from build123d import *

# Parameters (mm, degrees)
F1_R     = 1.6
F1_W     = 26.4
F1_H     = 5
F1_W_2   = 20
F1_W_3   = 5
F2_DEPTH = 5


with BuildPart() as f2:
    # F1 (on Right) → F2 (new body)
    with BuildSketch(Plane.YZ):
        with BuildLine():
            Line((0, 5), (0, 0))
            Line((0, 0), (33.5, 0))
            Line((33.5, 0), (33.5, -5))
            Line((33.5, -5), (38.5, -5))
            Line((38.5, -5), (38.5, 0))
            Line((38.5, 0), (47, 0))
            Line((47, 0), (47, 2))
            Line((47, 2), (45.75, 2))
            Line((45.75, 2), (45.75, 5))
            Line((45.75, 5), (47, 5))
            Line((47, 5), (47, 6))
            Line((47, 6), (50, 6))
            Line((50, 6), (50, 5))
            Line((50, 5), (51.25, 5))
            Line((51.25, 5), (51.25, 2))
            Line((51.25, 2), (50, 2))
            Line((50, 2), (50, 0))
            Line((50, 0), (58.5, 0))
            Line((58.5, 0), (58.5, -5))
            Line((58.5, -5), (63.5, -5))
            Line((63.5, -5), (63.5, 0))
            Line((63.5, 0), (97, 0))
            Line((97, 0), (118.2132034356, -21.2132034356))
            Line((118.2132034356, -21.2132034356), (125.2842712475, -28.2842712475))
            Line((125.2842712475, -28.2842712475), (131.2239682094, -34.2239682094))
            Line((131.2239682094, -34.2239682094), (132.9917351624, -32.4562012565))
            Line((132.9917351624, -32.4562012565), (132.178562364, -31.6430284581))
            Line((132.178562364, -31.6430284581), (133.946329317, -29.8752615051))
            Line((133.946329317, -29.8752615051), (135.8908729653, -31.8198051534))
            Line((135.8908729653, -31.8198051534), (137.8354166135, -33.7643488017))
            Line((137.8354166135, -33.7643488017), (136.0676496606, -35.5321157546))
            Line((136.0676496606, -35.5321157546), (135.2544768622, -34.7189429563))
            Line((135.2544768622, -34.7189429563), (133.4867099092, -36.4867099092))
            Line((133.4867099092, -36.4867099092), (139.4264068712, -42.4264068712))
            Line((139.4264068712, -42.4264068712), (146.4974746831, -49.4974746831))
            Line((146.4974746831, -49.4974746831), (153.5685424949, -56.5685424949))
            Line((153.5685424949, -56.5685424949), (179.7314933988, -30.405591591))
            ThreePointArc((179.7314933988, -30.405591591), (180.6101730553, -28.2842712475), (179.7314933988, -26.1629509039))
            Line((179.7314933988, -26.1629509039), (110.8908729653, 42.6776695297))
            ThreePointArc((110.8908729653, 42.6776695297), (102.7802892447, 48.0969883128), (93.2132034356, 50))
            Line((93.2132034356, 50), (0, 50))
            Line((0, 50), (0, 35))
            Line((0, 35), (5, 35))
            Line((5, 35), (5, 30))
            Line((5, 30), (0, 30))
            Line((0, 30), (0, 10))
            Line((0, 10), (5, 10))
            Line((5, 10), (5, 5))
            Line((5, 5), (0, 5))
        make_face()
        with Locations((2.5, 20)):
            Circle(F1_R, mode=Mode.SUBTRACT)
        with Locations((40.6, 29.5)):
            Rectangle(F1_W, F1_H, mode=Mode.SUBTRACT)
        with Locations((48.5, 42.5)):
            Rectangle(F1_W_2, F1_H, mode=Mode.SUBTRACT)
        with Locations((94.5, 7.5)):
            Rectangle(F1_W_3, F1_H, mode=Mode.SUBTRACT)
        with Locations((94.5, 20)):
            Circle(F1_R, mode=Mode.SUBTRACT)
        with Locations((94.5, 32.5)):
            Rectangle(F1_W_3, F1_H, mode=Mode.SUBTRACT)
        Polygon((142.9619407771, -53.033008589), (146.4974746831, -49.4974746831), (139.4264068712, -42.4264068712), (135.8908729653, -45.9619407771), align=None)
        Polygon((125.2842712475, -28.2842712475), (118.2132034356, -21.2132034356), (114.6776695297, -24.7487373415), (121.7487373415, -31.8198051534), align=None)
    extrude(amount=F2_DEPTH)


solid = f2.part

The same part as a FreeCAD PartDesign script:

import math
import FreeCAD as App
import Part
import Sketcher
from FreeCAD import Vector

doc = App.newDocument("Part")
body = doc.addObject("PartDesign::Body", "Body")

# Sketch on YZ plane
sketch1 = body.newObject("Sketcher::SketchObject", "Sketch")
sketch1.AttachmentSupport = (doc.getObject("YZ_Plane"), [""])
sketch1.MapMode = "FlatFace"
sketch1.addGeometry([
    Part.LineSegment(Vector(0, 5, 0), Vector(0, 0, 0)),  # 0
    Part.LineSegment(Vector(0, 0, 0), Vector(33.5, 0, 0)),  # 1
    Part.LineSegment(Vector(33.5, 0, 0), Vector(33.5, -5, 0)),  # 2
    Part.LineSegment(Vector(33.5, -5, 0), Vector(38.5, -5, 0)),  # 3
    Part.LineSegment(Vector(38.5, -5, 0), Vector(38.5, 0, 0)),  # 4
    Part.LineSegment(Vector(38.5, 0, 0), Vector(47, 0, 0)),  # 5
    Part.LineSegment(Vector(47, 0, 0), Vector(47, 2, 0)),  # 6
    Part.LineSegment(Vector(47, 2, 0), Vector(45.8, 2, 0)),  # 7
    Part.LineSegment(Vector(45.8, 2, 0), Vector(45.8, 5, 0)),  # 8
    Part.LineSegment(Vector(45.8, 5, 0), Vector(47, 5, 0)),  # 9
    Part.LineSegment(Vector(47, 5, 0), Vector(47, 6, 0)),  # 10
    Part.LineSegment(Vector(47, 6, 0), Vector(50, 6, 0)),  # 11
    Part.LineSegment(Vector(50, 6, 0), Vector(50, 5, 0)),  # 12
    Part.LineSegment(Vector(50, 5, 0), Vector(51.2, 5, 0)),  # 13
    Part.LineSegment(Vector(51.2, 5, 0), Vector(51.2, 2, 0)),  # 14
    Part.LineSegment(Vector(51.2, 2, 0), Vector(50, 2, 0)),  # 15
    Part.LineSegment(Vector(50, 2, 0), Vector(50, 0, 0)),  # 16
    Part.LineSegment(Vector(50, 0, 0), Vector(58.5, 0, 0)),  # 17
    Part.LineSegment(Vector(58.5, 0, 0), Vector(58.5, -5, 0)),  # 18
    Part.LineSegment(Vector(58.5, -5, 0), Vector(63.5, -5, 0)),  # 19
    Part.LineSegment(Vector(63.5, -5, 0), Vector(63.5, 0, 0)),  # 20
    Part.LineSegment(Vector(63.5, 0, 0), Vector(97, 0, 0)),  # 21
    Part.LineSegment(Vector(97, 0, 0), Vector(118.2, -21.2, 0)),  # 22
    Part.LineSegment(Vector(118.2, -21.2, 0), Vector(114.7, -24.7, 0)),  # 23
    Part.LineSegment(Vector(114.7, -24.7, 0), Vector(121.7, -31.8, 0)),  # 24
    Part.LineSegment(Vector(121.7, -31.8, 0), Vector(125.3, -28.3, 0)),  # 25
    Part.LineSegment(Vector(125.3, -28.3, 0), Vector(131.2, -34.2, 0)),  # 26
    Part.LineSegment(Vector(131.2, -34.2, 0), Vector(133, -32.5, 0)),  # 27
    Part.LineSegment(Vector(133, -32.5, 0), Vector(132.2, -31.6, 0)),  # 28
    Part.LineSegment(Vector(132.2, -31.6, 0), Vector(133.9, -29.9, 0)),  # 29
    Part.LineSegment(Vector(133.9, -29.9, 0), Vector(135.9, -31.8, 0)),  # 30
    Part.LineSegment(Vector(135.9, -31.8, 0), Vector(137.8, -33.8, 0)),  # 31
    Part.LineSegment(Vector(137.8, -33.8, 0), Vector(136.1, -35.5, 0)),  # 32
    Part.LineSegment(Vector(136.1, -35.5, 0), Vector(135.3, -34.7, 0)),  # 33
    Part.LineSegment(Vector(135.3, -34.7, 0), Vector(133.5, -36.5, 0)),  # 34
    Part.LineSegment(Vector(133.5, -36.5, 0), Vector(139.4, -42.4, 0)),  # 35
    Part.LineSegment(Vector(139.4, -42.4, 0), Vector(135.9, -46, 0)),  # 36
    Part.LineSegment(Vector(135.9, -46, 0), Vector(143, -53, 0)),  # 37
    Part.LineSegment(Vector(143, -53, 0), Vector(146.5, -49.5, 0)),  # 38
    Part.LineSegment(Vector(146.5, -49.5, 0), Vector(153.6, -56.6, 0)),  # 39
    Part.LineSegment(Vector(153.6, -56.6, 0), Vector(179.7, -30.4, 0)),  # 40
    Part.ArcOfCircle(Part.Circle(Vector(177.6, -28.3, 0), Vector(0, 0, 1), 3), math.radians(-45), math.radians(45)),  # 41
    Part.LineSegment(Vector(179.7, -26.2, 0), Vector(110.9, 42.7, 0)),  # 42
    Part.ArcOfCircle(Part.Circle(Vector(93.2, 25, 0), Vector(0, 0, 1), 25), math.radians(45), math.radians(90)),  # 43
    Part.LineSegment(Vector(93.2, 50, 0), Vector(0, 50, 0)),  # 44
    Part.LineSegment(Vector(0, 50, 0), Vector(0, 35, 0)),  # 45
    Part.LineSegment(Vector(0, 35, 0), Vector(5, 35, 0)),  # 46
    Part.LineSegment(Vector(5, 35, 0), Vector(5, 30, 0)),  # 47
    Part.LineSegment(Vector(5, 30, 0), Vector(0, 30, 0)),  # 48
    Part.LineSegment(Vector(0, 30, 0), Vector(0, 10, 0)),  # 49
    Part.LineSegment(Vector(0, 10, 0), Vector(5, 10, 0)),  # 50
    Part.LineSegment(Vector(5, 10, 0), Vector(5, 5, 0)),  # 51
    Part.LineSegment(Vector(5, 5, 0), Vector(0, 5, 0)),  # 52
    Part.Circle(Vector(2.5, 20, 0), Vector(0, 0, 1), 1.6),  # 53
    Part.LineSegment(Vector(97, 5, 0), Vector(92, 5, 0)),  # 54
    Part.LineSegment(Vector(92, 5, 0), Vector(92, 10, 0)),  # 55
    Part.LineSegment(Vector(92, 10, 0), Vector(97, 10, 0)),  # 56
    Part.LineSegment(Vector(97, 10, 0), Vector(97, 5, 0)),  # 57
    Part.Circle(Vector(94.5, 20, 0), Vector(0, 0, 1), 1.6),  # 58
    Part.LineSegment(Vector(53.8, 27, 0), Vector(27.4, 27, 0)),  # 59
    Part.LineSegment(Vector(27.4, 27, 0), Vector(27.4, 32, 0)),  # 60
    Part.LineSegment(Vector(27.4, 32, 0), Vector(53.8, 32, 0)),  # 61
    Part.LineSegment(Vector(53.8, 32, 0), Vector(53.8, 27, 0)),  # 62
    Part.LineSegment(Vector(58.5, 40, 0), Vector(38.5, 40, 0)),  # 63
    Part.LineSegment(Vector(38.5, 40, 0), Vector(38.5, 45, 0)),  # 64
    Part.LineSegment(Vector(38.5, 45, 0), Vector(58.5, 45, 0)),  # 65
    Part.LineSegment(Vector(58.5, 45, 0), Vector(58.5, 40, 0)),  # 66
    Part.LineSegment(Vector(97, 30, 0), Vector(92, 30, 0)),  # 67
    Part.LineSegment(Vector(92, 30, 0), Vector(92, 35, 0)),  # 68
    Part.LineSegment(Vector(92, 35, 0), Vector(97, 35, 0)),  # 69
    Part.LineSegment(Vector(97, 35, 0), Vector(97, 30, 0)),  # 70
], False)
sketch1.addConstraint([
    Sketcher.Constraint("Coincident", 0, 2, 1, 1),
    Sketcher.Constraint("Coincident", 1, 2, 2, 1),
    Sketcher.Constraint("Coincident", 2, 2, 3, 1),
    Sketcher.Constraint("Coincident", 3, 2, 4, 1),
    Sketcher.Constraint("Coincident", 4, 2, 5, 1),
    Sketcher.Constraint("Coincident", 5, 2, 6, 1),
    Sketcher.Constraint("Coincident", 6, 2, 7, 1),
    Sketcher.Constraint("Coincident", 7, 2, 8, 1),
    Sketcher.Constraint("Coincident", 8, 2, 9, 1),
    Sketcher.Constraint("Coincident", 9, 2, 10, 1),
    Sketcher.Constraint("Coincident", 10, 2, 11, 1),
    Sketcher.Constraint("Coincident", 11, 2, 12, 1),
    Sketcher.Constraint("Coincident", 12, 2, 13, 1),
    Sketcher.Constraint("Coincident", 13, 2, 14, 1),
    Sketcher.Constraint("Coincident", 14, 2, 15, 1),
    Sketcher.Constraint("Coincident", 15, 2, 16, 1),
    Sketcher.Constraint("Coincident", 16, 2, 17, 1),
    Sketcher.Constraint("Coincident", 17, 2, 18, 1),
    Sketcher.Constraint("Coincident", 18, 2, 19, 1),
    Sketcher.Constraint("Coincident", 19, 2, 20, 1),
    Sketcher.Constraint("Coincident", 20, 2, 21, 1),
    Sketcher.Constraint("Coincident", 21, 2, 22, 1),
    Sketcher.Constraint("Coincident", 22, 2, 23, 1),
    Sketcher.Constraint("Coincident", 23, 2, 24, 1),
    Sketcher.Constraint("Coincident", 24, 2, 25, 1),
    Sketcher.Constraint("Coincident", 25, 2, 26, 1),
    Sketcher.Constraint("Coincident", 26, 2, 27, 1),
    Sketcher.Constraint("Coincident", 27, 2, 28, 1),
    Sketcher.Constraint("Coincident", 28, 2, 29, 1),
    Sketcher.Constraint("Coincident", 29, 2, 30, 1),
    Sketcher.Constraint("Coincident", 30, 2, 31, 1),
    Sketcher.Constraint("Coincident", 31, 2, 32, 1),
    Sketcher.Constraint("Coincident", 32, 2, 33, 1),
    Sketcher.Constraint("Coincident", 33, 2, 34, 1),
    Sketcher.Constraint("Coincident", 34, 2, 35, 1),
    Sketcher.Constraint("Coincident", 35, 2, 36, 1),
    Sketcher.Constraint("Coincident", 36, 2, 37, 1),
    Sketcher.Constraint("Coincident", 37, 2, 38, 1),
    Sketcher.Constraint("Coincident", 38, 2, 39, 1),
    Sketcher.Constraint("Coincident", 39, 2, 40, 1),
    Sketcher.Constraint("Tangent", 40, 2, 41, 1),
    Sketcher.Constraint("Tangent", 41, 2, 42, 1),
    Sketcher.Constraint("Tangent", 42, 2, 43, 1),
    Sketcher.Constraint("Tangent", 43, 2, 44, 1),
    Sketcher.Constraint("Coincident", 44, 2, 45, 1),
    Sketcher.Constraint("Coincident", 45, 2, 46, 1),
    Sketcher.Constraint("Coincident", 46, 2, 47, 1),
    Sketcher.Constraint("Coincident", 47, 2, 48, 1),
    Sketcher.Constraint("Coincident", 48, 2, 49, 1),
    Sketcher.Constraint("Coincident", 49, 2, 50, 1),
    Sketcher.Constraint("Coincident", 50, 2, 51, 1),
    Sketcher.Constraint("Coincident", 51, 2, 52, 1),
    Sketcher.Constraint("Coincident", 52, 2, 0, 1),
    Sketcher.Constraint("Coincident", 54, 2, 55, 1),
    Sketcher.Constraint("Coincident", 55, 2, 56, 1),
    Sketcher.Constraint("Coincident", 56, 2, 57, 1),
    Sketcher.Constraint("Coincident", 57, 2, 54, 1),
    Sketcher.Constraint("Coincident", 59, 2, 60, 1),
    Sketcher.Constraint("Coincident", 60, 2, 61, 1),
    Sketcher.Constraint("Coincident", 61, 2, 62, 1),
    Sketcher.Constraint("Coincident", 62, 2, 59, 1),
    Sketcher.Constraint("Coincident", 63, 2, 64, 1),
    Sketcher.Constraint("Coincident", 64, 2, 65, 1),
    Sketcher.Constraint("Coincident", 65, 2, 66, 1),
    Sketcher.Constraint("Coincident", 66, 2, 63, 1),
    Sketcher.Constraint("Coincident", 67, 2, 68, 1),
    Sketcher.Constraint("Coincident", 68, 2, 69, 1),
    Sketcher.Constraint("Coincident", 69, 2, 70, 1),
    Sketcher.Constraint("Coincident", 70, 2, 67, 1),
    Sketcher.Constraint("Vertical", 0),
    Sketcher.Constraint("Horizontal", 1),
    Sketcher.Constraint("Vertical", 2),
    Sketcher.Constraint("Horizontal", 3),
    Sketcher.Constraint("Vertical", 4),
    Sketcher.Constraint("Horizontal", 5),
    Sketcher.Constraint("Vertical", 6),
    Sketcher.Constraint("Horizontal", 7),
    Sketcher.Constraint("Vertical", 8),
    Sketcher.Constraint("Horizontal", 9),
    Sketcher.Constraint("Vertical", 10),
    Sketcher.Constraint("Horizontal", 11),
    Sketcher.Constraint("Vertical", 12),
    Sketcher.Constraint("Horizontal", 13),
    Sketcher.Constraint("Vertical", 14),
    Sketcher.Constraint("Horizontal", 15),
    Sketcher.Constraint("Vertical", 16),
    Sketcher.Constraint("Horizontal", 17),
    Sketcher.Constraint("Vertical", 18),
    Sketcher.Constraint("Horizontal", 19),
    Sketcher.Constraint("Vertical", 20),
    Sketcher.Constraint("Horizontal", 21),
    Sketcher.Constraint("Horizontal", 44),
    Sketcher.Constraint("Vertical", 45),
    Sketcher.Constraint("Horizontal", 46),
    Sketcher.Constraint("Vertical", 47),
    Sketcher.Constraint("Horizontal", 48),
    Sketcher.Constraint("Vertical", 49),
    Sketcher.Constraint("Horizontal", 50),
    Sketcher.Constraint("Vertical", 51),
    Sketcher.Constraint("Horizontal", 52),
    Sketcher.Constraint("Horizontal", 54),
    Sketcher.Constraint("Vertical", 55),
    Sketcher.Constraint("Horizontal", 56),
    Sketcher.Constraint("Vertical", 57),
    Sketcher.Constraint("Horizontal", 59),
    Sketcher.Constraint("Vertical", 60),
    Sketcher.Constraint("Horizontal", 61),
    Sketcher.Constraint("Vertical", 62),
    Sketcher.Constraint("Horizontal", 63),
    Sketcher.Constraint("Vertical", 64),
    Sketcher.Constraint("Horizontal", 65),
    Sketcher.Constraint("Vertical", 66),
    Sketcher.Constraint("Horizontal", 67),
    Sketcher.Constraint("Vertical", 68),
    Sketcher.Constraint("Horizontal", 69),
    Sketcher.Constraint("Vertical", 70),
    Sketcher.Constraint("Coincident", 0, 2, -1, 1),
    Sketcher.Constraint("Equal", 53, 58),
    Sketcher.Constraint("PointOnObject", 4, 2, -1),
    Sketcher.Constraint("PointOnObject", 16, 2, -1),
    Sketcher.Constraint("PointOnObject", 20, 2, -1),
    Sketcher.Constraint("PointOnObject", 44, 2, -2),
    Sketcher.Constraint("PointOnObject", 48, 2, -2),
    Sketcher.Constraint("Perpendicular", 22, 23),
    Sketcher.Constraint("Perpendicular", 23, 24),
    Sketcher.Constraint("Perpendicular", 24, 25),
    Sketcher.Constraint("Perpendicular", 25, 26),
    Sketcher.Constraint("Perpendicular", 26, 27),
    Sketcher.Constraint("Perpendicular", 27, 28),
    Sketcher.Constraint("Perpendicular", 28, 29),
    Sketcher.Constraint("Perpendicular", 29, 30),
    Sketcher.Constraint("Parallel", 30, 31),
    Sketcher.Constraint("Perpendicular", 31, 32),
    Sketcher.Constraint("Perpendicular", 32, 33),
    Sketcher.Constraint("Perpendicular", 33, 34),
    Sketcher.Constraint("Perpendicular", 34, 35),
    Sketcher.Constraint("Perpendicular", 35, 36),
    Sketcher.Constraint("Perpendicular", 36, 37),
    Sketcher.Constraint("Perpendicular", 37, 38),
    Sketcher.Constraint("Perpendicular", 38, 39),
    Sketcher.Constraint("Perpendicular", 39, 40),
    Sketcher.Constraint("Perpendicular", 40, 42),
    Sketcher.Constraint("Horizontal", 53, 3, 58, 3),
    Sketcher.Constraint("Horizontal", 9, 2, 12, 2),
    Sketcher.Constraint("Horizontal", 7, 2, 14, 2),
    Sketcher.Constraint("Horizontal", 3, 2, 18, 2),
    Sketcher.Constraint("Horizontal", 41, 3, 25, 2),
    Sketcher.Constraint("Horizontal", 24, 2, 30, 2),
    Sketcher.Constraint("Horizontal", 13, 2, 51, 2),
    Sketcher.Constraint("Horizontal", 52, 2, 54, 2),
    Sketcher.Constraint("Horizontal", 50, 2, 55, 2),
    Sketcher.Constraint("Horizontal", 48, 2, 67, 2),
    Sketcher.Constraint("Horizontal", 46, 2, 68, 2),
    Sketcher.Constraint("Vertical", 6, 2, 9, 2),
    Sketcher.Constraint("Vertical", 12, 2, 15, 2),
    Sketcher.Constraint("Vertical", 30, 2, 36, 2),
    Sketcher.Constraint("Vertical", 40, 2, 41, 2),
    Sketcher.Constraint("Vertical", 47, 2, 50, 2),
    Sketcher.Constraint("Vertical", 21, 2, 56, 2),
    Sketcher.Constraint("Vertical", 4, 2, 63, 2),
    Sketcher.Constraint("Vertical", 18, 2, 65, 2),
    Sketcher.Constraint("Vertical", 55, 2, 67, 2),
    Sketcher.Constraint("Vertical", 57, 2, 69, 2),
    Sketcher.Constraint("Equal", 9, 13),
    Sketcher.Constraint("Equal", 5, 17),
    Sketcher.Constraint("Equal", 3, 19),
    Sketcher.Constraint("Equal", 1, 21),
    Sketcher.Constraint("Equal", 19, 46),
    Sketcher.Constraint("Equal", 52, 54),
    Sketcher.Constraint("Equal", 69, 0),
    Sketcher.Constraint("Equal", 0, 2),
    Sketcher.Constraint("Equal", 11, 8),
    Sketcher.Constraint("Equal", 20, 47),
    Sketcher.Constraint("Equal", 65, 49),
    Sketcher.Constraint("Equal", 47, 51),
    Sketcher.Constraint("Equal", 57, 60),
    Sketcher.Constraint("Equal", 62, 64),
    Sketcher.Constraint("Equal", 23, 25),
    Sketcher.Constraint("Equal", 27, 29),
    Sketcher.Constraint("Equal", 30, 31),
    Sketcher.Constraint("Equal", 29, 32),
    Sketcher.Constraint("Equal", 28, 33),
    Sketcher.Constraint("Equal", 32, 34),
    Sketcher.Constraint("Equal", 26, 35),
    Sketcher.Constraint("Equal", 24, 37),
    Sketcher.Constraint("Equal", 36, 38),
    Sketcher.Constraint("Equal", 37, 39),
    Sketcher.Constraint("Radius", 41, 3.0),
    Sketcher.Constraint("Radius", 43, 25.0),
    Sketcher.Constraint("Diameter", 53, 3.2),
    Sketcher.Constraint("DistanceX", 3, 1, 3, 2, 5.0),
    Sketcher.Constraint("DistanceX", 11, 1, 11, 2, 3.0),
    Sketcher.Constraint("DistanceX", 63, 2, 63, 1, 20.0),
    Sketcher.Constraint("DistanceY", 10, 1, 10, 2, 1.0),
    Sketcher.Constraint("DistanceY", 45, 2, 45, 1, 15.0),
    Sketcher.Constraint("Distance", 22, 30.0),
    Sketcher.Constraint("Distance", 23, 5.0),
    Sketcher.Constraint("Distance", 24, 10.0),
    Sketcher.Constraint("Distance", 40, 37.0),
    Sketcher.Constraint("DistanceX", 1, 1, 1, 2, 33.5),
    Sketcher.Constraint("DistanceX", 59, 2, 59, 1, 26.4),
    Sketcher.Constraint("DistanceY", -1, 1, 53, 3, 20.0),
    Sketcher.Constraint("DistanceY", -1, 1, 59, 2, 27.0),
    Sketcher.Constraint("DistanceY", -1, 1, 63, 2, 40.0),
    Sketcher.Constraint("Distance", 26, 8.4),
    Sketcher.Constraint("DistanceX", 7, 2, 7, 1, 1.25),
    Sketcher.Constraint("DistanceX", -1, 1, 53, 3, 2.5),
    Sketcher.Constraint("DistanceX", -1, 1, 58, 3, 94.5),
    Sketcher.Constraint("DistanceX", -1, 1, 59, 2, 27.4),
    Sketcher.Constraint("Distance", 28, 1.15),
])
pad1 = body.newObject("PartDesign::Pad", "Pad")
pad1.Profile = sketch1
pad1.Length = 5

doc.recompute()
